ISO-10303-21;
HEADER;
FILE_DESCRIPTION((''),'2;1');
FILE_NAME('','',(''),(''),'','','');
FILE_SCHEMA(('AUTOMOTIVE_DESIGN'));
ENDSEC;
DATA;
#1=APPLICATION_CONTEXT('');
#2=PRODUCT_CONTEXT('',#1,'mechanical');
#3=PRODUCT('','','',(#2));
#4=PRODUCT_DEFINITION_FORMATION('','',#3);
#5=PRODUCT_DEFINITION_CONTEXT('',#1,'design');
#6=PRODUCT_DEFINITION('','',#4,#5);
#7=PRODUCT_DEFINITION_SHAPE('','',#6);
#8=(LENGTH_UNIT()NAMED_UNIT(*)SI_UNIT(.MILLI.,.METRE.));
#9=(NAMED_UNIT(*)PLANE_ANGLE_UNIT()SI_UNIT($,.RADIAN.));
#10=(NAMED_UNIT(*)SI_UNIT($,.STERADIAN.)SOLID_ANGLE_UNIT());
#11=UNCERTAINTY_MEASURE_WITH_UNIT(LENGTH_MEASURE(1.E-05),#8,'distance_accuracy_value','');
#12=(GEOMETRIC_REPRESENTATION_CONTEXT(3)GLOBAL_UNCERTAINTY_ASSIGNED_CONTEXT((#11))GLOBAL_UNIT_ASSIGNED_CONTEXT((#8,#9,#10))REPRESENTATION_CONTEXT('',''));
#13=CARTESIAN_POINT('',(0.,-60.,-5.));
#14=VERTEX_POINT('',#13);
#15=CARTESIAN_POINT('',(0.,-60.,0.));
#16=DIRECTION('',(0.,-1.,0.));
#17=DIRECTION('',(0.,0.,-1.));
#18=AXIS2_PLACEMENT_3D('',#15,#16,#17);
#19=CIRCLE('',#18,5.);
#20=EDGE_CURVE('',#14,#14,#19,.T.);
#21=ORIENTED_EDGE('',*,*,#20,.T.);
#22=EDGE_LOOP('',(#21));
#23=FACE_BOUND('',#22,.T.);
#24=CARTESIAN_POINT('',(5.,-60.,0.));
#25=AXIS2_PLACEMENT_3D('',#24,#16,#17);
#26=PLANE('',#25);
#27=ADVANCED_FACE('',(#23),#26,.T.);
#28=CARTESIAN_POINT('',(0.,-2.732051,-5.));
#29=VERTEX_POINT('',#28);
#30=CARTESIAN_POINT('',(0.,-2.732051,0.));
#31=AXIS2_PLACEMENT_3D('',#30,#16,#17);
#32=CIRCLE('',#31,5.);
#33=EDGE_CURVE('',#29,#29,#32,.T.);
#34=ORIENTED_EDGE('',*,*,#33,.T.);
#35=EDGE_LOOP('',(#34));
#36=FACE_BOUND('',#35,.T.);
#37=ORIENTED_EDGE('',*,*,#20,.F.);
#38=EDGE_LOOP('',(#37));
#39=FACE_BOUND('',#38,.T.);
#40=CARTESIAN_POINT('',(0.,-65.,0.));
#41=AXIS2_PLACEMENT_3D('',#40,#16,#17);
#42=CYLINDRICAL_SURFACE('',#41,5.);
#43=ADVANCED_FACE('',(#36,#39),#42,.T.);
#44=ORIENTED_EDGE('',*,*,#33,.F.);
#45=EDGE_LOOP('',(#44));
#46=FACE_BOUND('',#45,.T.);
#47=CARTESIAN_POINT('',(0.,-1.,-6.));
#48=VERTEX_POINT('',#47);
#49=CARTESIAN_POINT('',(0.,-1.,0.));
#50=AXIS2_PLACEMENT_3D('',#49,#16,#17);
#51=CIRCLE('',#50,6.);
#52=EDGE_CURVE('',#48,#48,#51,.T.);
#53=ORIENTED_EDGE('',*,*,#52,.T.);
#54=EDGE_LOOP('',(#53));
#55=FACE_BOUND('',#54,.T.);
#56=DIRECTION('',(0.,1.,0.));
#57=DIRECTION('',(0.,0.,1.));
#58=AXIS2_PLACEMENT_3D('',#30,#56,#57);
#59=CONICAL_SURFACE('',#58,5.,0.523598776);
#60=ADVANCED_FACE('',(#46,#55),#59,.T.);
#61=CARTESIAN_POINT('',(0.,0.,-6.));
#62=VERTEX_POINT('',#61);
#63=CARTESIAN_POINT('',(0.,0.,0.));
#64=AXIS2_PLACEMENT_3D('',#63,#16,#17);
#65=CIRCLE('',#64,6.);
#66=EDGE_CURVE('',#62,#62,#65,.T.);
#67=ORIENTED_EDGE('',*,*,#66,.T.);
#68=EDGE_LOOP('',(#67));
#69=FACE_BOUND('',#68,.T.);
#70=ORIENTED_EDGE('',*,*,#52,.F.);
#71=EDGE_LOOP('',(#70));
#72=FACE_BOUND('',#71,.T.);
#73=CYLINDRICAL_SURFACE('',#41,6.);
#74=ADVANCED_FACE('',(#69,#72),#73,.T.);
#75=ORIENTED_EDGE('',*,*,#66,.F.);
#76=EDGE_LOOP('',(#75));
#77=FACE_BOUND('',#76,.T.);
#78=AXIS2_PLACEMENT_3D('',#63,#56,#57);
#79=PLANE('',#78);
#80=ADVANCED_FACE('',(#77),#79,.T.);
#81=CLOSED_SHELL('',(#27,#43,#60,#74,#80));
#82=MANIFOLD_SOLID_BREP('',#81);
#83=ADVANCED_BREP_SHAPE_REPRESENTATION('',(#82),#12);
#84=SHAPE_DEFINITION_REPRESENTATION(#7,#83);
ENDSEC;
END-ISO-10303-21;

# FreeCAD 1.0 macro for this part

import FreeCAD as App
import Part
import Sketcher
Q = App.Units.Quantity

doc = App.newDocument("Part")
body = doc.addObject("PartDesign::Body", "Body")

sketch1 = body.newObject("Sketcher::SketchObject", "Sketch")
sketch1.AttachmentSupport = (doc.getObject("XY_Plane"), [""])
sketch1.MapMode = "FlatFace"
sketch1.addGeometry([
    Part.LineSegment(App.Vector(6, 0, 0), App.Vector(0, 0, 0)),
    Part.LineSegment(App.Vector(0, 0, 0), App.Vector(0, -60, 0)),
    Part.LineSegment(App.Vector(0, -60, 0), App.Vector(5, -60, 0)),
    Part.LineSegment(App.Vector(5, -60, 0), App.Vector(5, -2.732051, 0)),
    Part.LineSegment(App.Vector(5, -2.732051, 0), App.Vector(6, -1, 0)),
    Part.LineSegment(App.Vector(6, -1, 0), App.Vector(6, 0, 0)),
], False)
sketch1.addConstraint([
    Sketcher.Constraint("Coincident", 0, 2, 1, 1),
    Sketcher.Constraint("Coincident", 1, 2, 2, 1),
    Sketcher.Constraint("Coincident", 2, 2, 3, 1),
    Sketcher.Constraint("Coincident", 3, 2, 4, 1),
    Sketcher.Constraint("Coincident", 4, 2, 5, 1),
    Sketcher.Constraint("Coincident", 5, 2, 0, 1),
    Sketcher.Constraint("Horizontal", 0),
    Sketcher.Constraint("Vertical", 1),
    Sketcher.Constraint("Horizontal", 2),
    Sketcher.Constraint("Vertical", 3),
    Sketcher.Constraint("Vertical", 5),
    Sketcher.Constraint("Coincident", 0, 2, -1, 1),
    Sketcher.Constraint("DistanceX", 0, 2, 0, 1, Q("6 mm")),
    Sketcher.Constraint("DistanceX", 2, 1, 2, 2, Q("5 mm")),
    Sketcher.Constraint("DistanceY", 1, 2, 1, 1, Q("60 mm")),
    Sketcher.Constraint("DistanceY", 5, 1, 5, 2, Q("1 mm")),
    Sketcher.Constraint("Angle", 4, Q("60 deg")),
])
revolution = body.newObject("PartDesign::Revolution", "Revolution")
revolution.Profile = sketch1
revolution.ReferenceAxis = (sketch1, ["V_Axis"])
revolution.Angle = 360

doc.recompute()
